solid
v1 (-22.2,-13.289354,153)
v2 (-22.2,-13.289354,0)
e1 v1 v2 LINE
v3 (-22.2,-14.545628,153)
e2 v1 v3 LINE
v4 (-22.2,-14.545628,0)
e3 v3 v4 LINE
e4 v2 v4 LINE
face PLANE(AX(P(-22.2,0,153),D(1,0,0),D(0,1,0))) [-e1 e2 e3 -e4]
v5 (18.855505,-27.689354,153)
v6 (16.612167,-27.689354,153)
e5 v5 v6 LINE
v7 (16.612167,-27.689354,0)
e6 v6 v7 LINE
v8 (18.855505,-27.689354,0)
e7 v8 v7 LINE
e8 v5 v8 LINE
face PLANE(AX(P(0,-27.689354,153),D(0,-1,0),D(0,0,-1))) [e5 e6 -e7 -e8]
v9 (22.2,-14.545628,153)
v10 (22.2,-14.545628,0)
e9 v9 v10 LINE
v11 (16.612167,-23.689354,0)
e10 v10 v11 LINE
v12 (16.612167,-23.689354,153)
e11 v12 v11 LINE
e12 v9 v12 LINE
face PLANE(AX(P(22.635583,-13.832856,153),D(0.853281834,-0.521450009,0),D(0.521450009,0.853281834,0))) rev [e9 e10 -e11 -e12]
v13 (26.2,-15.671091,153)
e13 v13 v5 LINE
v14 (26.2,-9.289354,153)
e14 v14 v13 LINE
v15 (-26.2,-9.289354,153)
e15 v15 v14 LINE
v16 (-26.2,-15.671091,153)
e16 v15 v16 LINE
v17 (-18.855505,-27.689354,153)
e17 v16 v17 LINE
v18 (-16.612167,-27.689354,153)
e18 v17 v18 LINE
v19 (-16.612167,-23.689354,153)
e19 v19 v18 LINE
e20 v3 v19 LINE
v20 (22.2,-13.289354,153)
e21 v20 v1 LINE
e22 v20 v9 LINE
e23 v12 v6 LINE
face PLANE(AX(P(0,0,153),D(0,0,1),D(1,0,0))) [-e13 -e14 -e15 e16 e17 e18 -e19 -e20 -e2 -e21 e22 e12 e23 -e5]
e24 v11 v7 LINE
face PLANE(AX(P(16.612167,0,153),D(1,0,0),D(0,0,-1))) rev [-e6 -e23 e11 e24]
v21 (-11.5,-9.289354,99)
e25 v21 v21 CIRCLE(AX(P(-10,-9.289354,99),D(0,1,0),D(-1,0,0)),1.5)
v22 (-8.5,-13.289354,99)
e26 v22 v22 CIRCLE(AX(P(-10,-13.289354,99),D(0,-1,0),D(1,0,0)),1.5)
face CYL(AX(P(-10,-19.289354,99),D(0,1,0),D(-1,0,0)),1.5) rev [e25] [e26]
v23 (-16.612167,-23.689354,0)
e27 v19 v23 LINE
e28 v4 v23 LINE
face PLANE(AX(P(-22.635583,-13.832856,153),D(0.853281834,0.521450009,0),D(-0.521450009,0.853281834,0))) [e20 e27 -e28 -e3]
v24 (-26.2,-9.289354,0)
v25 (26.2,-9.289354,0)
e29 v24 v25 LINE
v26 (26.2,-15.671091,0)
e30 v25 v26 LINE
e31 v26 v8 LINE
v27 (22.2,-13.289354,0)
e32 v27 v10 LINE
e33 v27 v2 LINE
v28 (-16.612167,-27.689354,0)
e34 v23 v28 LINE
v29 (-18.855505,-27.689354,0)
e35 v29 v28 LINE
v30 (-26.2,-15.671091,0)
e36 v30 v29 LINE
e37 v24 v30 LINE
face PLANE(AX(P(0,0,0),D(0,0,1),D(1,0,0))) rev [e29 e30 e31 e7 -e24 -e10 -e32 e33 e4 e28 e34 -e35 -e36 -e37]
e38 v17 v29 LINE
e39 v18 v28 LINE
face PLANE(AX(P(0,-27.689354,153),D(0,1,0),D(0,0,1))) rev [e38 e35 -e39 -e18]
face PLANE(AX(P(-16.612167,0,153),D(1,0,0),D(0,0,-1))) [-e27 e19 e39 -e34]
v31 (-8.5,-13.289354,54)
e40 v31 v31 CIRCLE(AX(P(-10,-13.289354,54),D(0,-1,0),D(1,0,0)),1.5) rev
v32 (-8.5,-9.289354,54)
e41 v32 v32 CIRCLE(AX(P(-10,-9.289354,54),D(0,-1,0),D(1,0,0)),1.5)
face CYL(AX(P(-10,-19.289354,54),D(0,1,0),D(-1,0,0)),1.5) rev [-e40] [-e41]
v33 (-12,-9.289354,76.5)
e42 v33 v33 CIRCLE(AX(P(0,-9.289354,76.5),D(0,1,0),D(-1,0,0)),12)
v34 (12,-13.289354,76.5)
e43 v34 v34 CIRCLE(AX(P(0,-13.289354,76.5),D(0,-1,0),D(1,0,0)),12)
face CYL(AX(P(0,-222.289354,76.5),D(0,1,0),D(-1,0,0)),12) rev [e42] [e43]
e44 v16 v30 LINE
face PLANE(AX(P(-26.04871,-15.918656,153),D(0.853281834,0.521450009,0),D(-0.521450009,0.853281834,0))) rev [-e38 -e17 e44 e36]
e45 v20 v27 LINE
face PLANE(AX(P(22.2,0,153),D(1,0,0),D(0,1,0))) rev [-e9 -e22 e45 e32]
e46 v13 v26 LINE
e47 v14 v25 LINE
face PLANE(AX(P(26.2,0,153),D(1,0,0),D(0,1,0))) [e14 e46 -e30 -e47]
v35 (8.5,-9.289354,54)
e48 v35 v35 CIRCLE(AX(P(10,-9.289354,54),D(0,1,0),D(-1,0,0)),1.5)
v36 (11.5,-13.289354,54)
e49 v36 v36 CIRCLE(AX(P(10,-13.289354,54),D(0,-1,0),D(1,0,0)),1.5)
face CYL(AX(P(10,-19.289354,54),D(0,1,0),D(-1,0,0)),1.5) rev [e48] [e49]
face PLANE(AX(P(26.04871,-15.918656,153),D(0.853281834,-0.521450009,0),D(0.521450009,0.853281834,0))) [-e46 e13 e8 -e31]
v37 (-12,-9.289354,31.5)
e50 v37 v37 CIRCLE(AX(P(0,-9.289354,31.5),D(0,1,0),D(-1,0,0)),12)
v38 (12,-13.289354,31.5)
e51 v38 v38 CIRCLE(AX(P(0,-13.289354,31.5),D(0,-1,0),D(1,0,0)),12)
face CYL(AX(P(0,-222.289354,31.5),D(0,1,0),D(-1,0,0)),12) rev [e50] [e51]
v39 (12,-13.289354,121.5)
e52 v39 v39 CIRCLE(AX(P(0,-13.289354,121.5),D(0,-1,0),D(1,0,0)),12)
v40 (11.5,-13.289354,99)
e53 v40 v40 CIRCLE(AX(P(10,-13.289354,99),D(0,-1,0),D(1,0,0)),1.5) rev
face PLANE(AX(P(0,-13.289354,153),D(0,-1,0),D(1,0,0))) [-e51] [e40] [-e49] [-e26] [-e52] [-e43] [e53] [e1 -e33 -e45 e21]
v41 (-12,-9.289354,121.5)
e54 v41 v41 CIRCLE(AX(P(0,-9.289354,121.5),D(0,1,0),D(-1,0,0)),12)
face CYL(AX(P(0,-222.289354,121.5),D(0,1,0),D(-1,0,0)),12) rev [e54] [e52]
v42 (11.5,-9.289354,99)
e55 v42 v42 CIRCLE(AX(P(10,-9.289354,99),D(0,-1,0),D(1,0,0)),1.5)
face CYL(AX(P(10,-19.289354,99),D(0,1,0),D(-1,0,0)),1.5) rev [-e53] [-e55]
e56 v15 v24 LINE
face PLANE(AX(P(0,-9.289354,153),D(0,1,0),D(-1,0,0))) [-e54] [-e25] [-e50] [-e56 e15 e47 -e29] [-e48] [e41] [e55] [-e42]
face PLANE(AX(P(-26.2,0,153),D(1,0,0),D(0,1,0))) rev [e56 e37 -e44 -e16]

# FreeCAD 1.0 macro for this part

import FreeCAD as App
import Part
import Sketcher

V = App.Vector
Q = App.Units.Quantity

doc = App.newDocument("Part")
params = doc.addObject("Spreadsheet::Sheet", "Params")
for row, (alias, value) in enumerate([
    ("sketch1_height", "4 mm"),
    ("sketch1_width", "44.4 mm"),
    ("sketch1_width2", "52.4 mm"),
    ("pad1_length", "153 mm"),
    ("sketch2_diameter", "24 mm"),
    ("pocket1_length", "213 mm"),
    ("sketch3_diameter", "3 mm"),
    ("pocket2_length", "10 mm"),
], start=1):
    params.set(f"A{row}", alias)
    params.set(f"B{row}", "=" + value)
    params.setAlias(f"B{row}", alias)

body = doc.addObject("PartDesign::Body", "Body")

# Sketch on XY plane
sketch1 = doc.addObject("Sketcher::SketchObject", "Sketch")
body.addObject(sketch1)
sketch1.AttachmentSupport = (doc.XY_Plane, [""])
sketch1.MapMode = "FlatFace"
sketch1.addGeometry(Part.LineSegment(V(-22.2, -13.3, 0), V(22.2, -13.3, 0)), False)
sketch1.addGeometry(Part.LineSegment(V(22.2, -13.3, 0), V(22.2, -14.5, 0)), False)
sketch1.addGeometry(Part.LineSegment(V(22.2, -14.5, 0), V(16.6, -23.7, 0)), False)
sketch1.addGeometry(Part.LineSegment(V(16.6, -23.7, 0), V(16.6, -27.7, 0)), False)
sketch1.addGeometry(Part.LineSegment(V(16.6, -27.7, 0), V(18.9, -27.7, 0)), False)
sketch1.addGeometry(Part.LineSegment(V(18.9, -27.7, 0), V(26.2, -15.7, 0)), False)
sketch1.addGeometry(Part.LineSegment(V(26.2, -15.7, 0), V(26.2, -9.3, 0)), False)
sketch1.addGeometry(Part.LineSegment(V(26.2, -9.3, 0), V(-26.2, -9.3, 0)), False)
sketch1.addGeometry(Part.LineSegment(V(-26.2, -9.3, 0), V(-26.2, -15.7, 0)), False)
sketch1.addGeometry(Part.LineSegment(V(-26.2, -15.7, 0), V(-18.9, -27.7, 0)), False)
sketch1.addGeometry(Part.LineSegment(V(-18.9, -27.7, 0), V(-16.6, -27.7, 0)), False)
sketch1.addGeometry(Part.LineSegment(V(-16.6, -27.7, 0), V(-16.6, -23.7, 0)), False)
sketch1.addGeometry(Part.LineSegment(V(-16.6, -23.7, 0), V(-22.2, -14.5, 0)), False)
sketch1.addGeometry(Part.LineSegment(V(-22.2, -14.5, 0), V(-22.2, -13.3, 0)), False)
sketch1.addConstraint(Sketcher.Constraint("Coincident", 0, 2, 1, 1))
sketch1.addConstraint(Sketcher.Constraint("Coincident", 1, 2, 2, 1))
sketch1.addConstraint(Sketcher.Constraint("Coincident", 2, 2, 3, 1))
sketch1.addConstraint(Sketcher.Constraint("Coincident", 3, 2, 4, 1))
sketch1.addConstraint(Sketcher.Constraint("Coincident", 4, 2, 5, 1))
sketch1.addConstraint(Sketcher.Constraint("Coincident", 5, 2, 6, 1))
sketch1.addConstraint(Sketcher.Constraint("Coincident", 6, 2, 7, 1))
sketch1.addConstraint(Sketcher.Constraint("Coincident", 7, 2, 8, 1))
sketch1.addConstraint(Sketcher.Constraint("Coincident", 8, 2, 9, 1))
sketch1.addConstraint(Sketcher.Constraint("Coincident", 9, 2, 10, 1))
sketch1.addConstraint(Sketcher.Constraint("Coincident", 10, 2, 11, 1))
sketch1.addConstraint(Sketcher.Constraint("Coincident", 11, 2, 12, 1))
sketch1.addConstraint(Sketcher.Constraint("Coincident", 12, 2, 13, 1))
sketch1.addConstraint(Sketcher.Constraint("Coincident", 13, 2, 0, 1))
sketch1.addConstraint(Sketcher.Constraint("Horizontal", 0))
sketch1.addConstraint(Sketcher.Constraint("Vertical", 1))
sketch1.addConstraint(Sketcher.Constraint("Vertical", 3))
sketch1.addConstraint(Sketcher.Constraint("Horizontal", 4))
sketch1.addConstraint(Sketcher.Constraint("Vertical", 6))
sketch1.addConstraint(Sketcher.Constraint("Horizontal", 7))
sketch1.addConstraint(Sketcher.Constraint("Vertical", 8))
sketch1.addConstraint(Sketcher.Constraint("Horizontal", 10))
sketch1.addConstraint(Sketcher.Constraint("Vertical", 11))
sketch1.addConstraint(Sketcher.Constraint("Vertical", 13))
sketch1.addConstraint(Sketcher.Constraint("Symmetric", 5, 2, 8, 2, -2))
sketch1.addConstraint(Sketcher.Constraint("Symmetric", 4, 2, 9, 2, -2))
sketch1.addConstraint(Sketcher.Constraint("Symmetric", 2, 2, 11, 2, -2))
sketch1.addConstraint(Sketcher.Constraint("Symmetric", 1, 2, 12, 2, -2))
sketch1.addConstraint(Sketcher.Constraint("Parallel", 2, 5))
sketch1.addConstraint(Sketcher.Constraint("DistanceY", 3, 2, 3, 1, Q("4 mm")))
sketch1.addConstraint(Sketcher.Constraint("DistanceX", 0, 1, 0, 2, Q("44.4 mm")))
sketch1.addConstraint(Sketcher.Constraint("DistanceX", 7, 2, 7, 1, Q("52.4 mm")))
sketch1.addConstraint(Sketcher.Constraint("DistanceY", 0, 2, 6, 2, Q("4 mm")))
sketch1.addConstraint(Sketcher.Constraint("DistanceY", 2, 2, 0, 2, Q("10.4 mm")))
sketch1.addConstraint(Sketcher.Constraint("DistanceX", 4, 1, 4, 2, Q("2.243338 mm")))
sketch1.addConstraint(Sketcher.Constraint("Distance", 2, Q("10.715952 mm")))
sketch1.addConstraint(Sketcher.Constraint("DistanceY", 1, 2, 1, 1, Q("1.256273 mm")))
sketch1.addConstraint(Sketcher.Constraint("DistanceY", 5, 2, -1, 1, Q("15.671091 mm")))
sketch1.setExpression("Constraints[29]", "Params.sketch1_height")
sketch1.setExpression("Constraints[30]", "Params.sketch1_width")
sketch1.setExpression("Constraints[31]", "Params.sketch1_width2")
pad1 = doc.addObject("PartDesign::Pad", "Pad")
body.addObject(pad1)
pad1.Profile = sketch1
pad1.setExpression("Length", "Params.pad1_length")

# Sketch on XZ plane
sketch2 = doc.addObject("Sketcher::SketchObject", "Sketch001")
body.addObject(sketch2)
sketch2.AttachmentSupport = (doc.XZ_Plane, [""])
sketch2.MapMode = "FlatFace"
sketch2.AttachmentOffset = App.Placement(V(0, 0, 9.289354), App.Rotation())
sketch2.addGeometry(Part.Circle(V(0, 32, 0), V(0, 0, 1), 12), False)
sketch2.addGeometry(Part.Circle(V(0, 76, 0), V(0, 0, 1), 12), False)
sketch2.addGeometry(Part.Circle(V(0, 122, 0), V(0, 0, 1), 12), False)
sketch2.addConstraint(Sketcher.Constraint("Equal", 0, 1))
sketch2.addConstraint(Sketcher.Constraint("Equal", 1, 2))
sketch2.addConstraint(Sketcher.Constraint("PointOnObject", 0, 3, -2))
sketch2.addConstraint(Sketcher.Constraint("PointOnObject", 1, 3, -2))
sketch2.addConstraint(Sketcher.Constraint("PointOnObject", 2, 3, -2))
sketch2.addConstraint(Sketcher.Constraint("Diameter", 0, Q("24 mm")))
sketch2.addConstraint(Sketcher.Constraint("DistanceY", 0, 3, 1, 3, Q("45 mm")))
sketch2.addConstraint(Sketcher.Constraint("DistanceY", 1, 3, 2, 3, Q("45 mm")))
sketch2.addConstraint(Sketcher.Constraint("DistanceY", -1, 1, 0, 3, Q("31.5 mm")))
sketch2.setExpression("Constraints[5]", "Params.sketch2_diameter")
pocket1 = doc.addObject("PartDesign::Pocket", "Pocket")
body.addObject(pocket1)
pocket1.Profile = sketch2
pocket1.setExpression("Length", "Params.pocket1_length")
pocket1.Reversed = True

# Sketch on XZ plane
sketch3 = doc.addObject("Sketcher::SketchObject", "Sketch002")
body.addObject(sketch3)
sketch3.AttachmentSupport = (doc.XZ_Plane, [""])
sketch3.MapMode = "FlatFace"
sketch3.AttachmentOffset = App.Placement(V(0, 0, 9.289354), App.Rotation())
sketch3.addGeometry(Part.Circle(V(-10, 99, 0), V(0, 0, 1), 1.5), False)
sketch3.addGeometry(Part.Circle(V(10, 99, 0), V(0, 0, 1), 1.5), False)
sketch3.addGeometry(Part.Circle(V(10, 54, 0), V(0, 0, 1), 1.5), False)
sketch3.addGeometry(Part.Circle(V(-10, 54, 0), V(0, 0, 1), 1.5), False)
sketch3.addConstraint(Sketcher.Constraint("Equal", 0, 1))
sketch3.addConstraint(Sketcher.Constraint("Equal", 1, 2))
sketch3.addConstraint(Sketcher.Constraint("Equal", 2, 3))
sketch3.addConstraint(Sketcher.Constraint("Symmetric", 0, 3, 1, 3, -2))
sketch3.addConstraint(Sketcher.Constraint("Symmetric", 2, 3, 3, 3, -2))
sketch3.addConstraint(Sketcher.Constraint("Vertical", 1, 3, 2, 3))
sketch3.addConstraint(Sketcher.Constraint("Diameter", 0, Q("3 mm")))
sketch3.addConstraint(Sketcher.Constraint("DistanceX", 0, 3, -1, 1, Q("10 mm")))
sketch3.addConstraint(Sketcher.Constraint("DistanceY", -1, 1, 0, 3, Q("99 mm")))
sketch3.addConstraint(Sketcher.Constraint("DistanceY", -1, 1, 2, 3, Q("54 mm")))
sketch3.setExpression("Constraints[6]", "Params.sketch3_diameter")
pocket2 = doc.addObject("PartDesign::Pocket", "Pocket001")
body.addObject(pocket2)
pocket2.Profile = sketch3
pocket2.setExpression("Length", "Params.pocket2_length")
pocket2.Reversed = True

doc.recompute()
